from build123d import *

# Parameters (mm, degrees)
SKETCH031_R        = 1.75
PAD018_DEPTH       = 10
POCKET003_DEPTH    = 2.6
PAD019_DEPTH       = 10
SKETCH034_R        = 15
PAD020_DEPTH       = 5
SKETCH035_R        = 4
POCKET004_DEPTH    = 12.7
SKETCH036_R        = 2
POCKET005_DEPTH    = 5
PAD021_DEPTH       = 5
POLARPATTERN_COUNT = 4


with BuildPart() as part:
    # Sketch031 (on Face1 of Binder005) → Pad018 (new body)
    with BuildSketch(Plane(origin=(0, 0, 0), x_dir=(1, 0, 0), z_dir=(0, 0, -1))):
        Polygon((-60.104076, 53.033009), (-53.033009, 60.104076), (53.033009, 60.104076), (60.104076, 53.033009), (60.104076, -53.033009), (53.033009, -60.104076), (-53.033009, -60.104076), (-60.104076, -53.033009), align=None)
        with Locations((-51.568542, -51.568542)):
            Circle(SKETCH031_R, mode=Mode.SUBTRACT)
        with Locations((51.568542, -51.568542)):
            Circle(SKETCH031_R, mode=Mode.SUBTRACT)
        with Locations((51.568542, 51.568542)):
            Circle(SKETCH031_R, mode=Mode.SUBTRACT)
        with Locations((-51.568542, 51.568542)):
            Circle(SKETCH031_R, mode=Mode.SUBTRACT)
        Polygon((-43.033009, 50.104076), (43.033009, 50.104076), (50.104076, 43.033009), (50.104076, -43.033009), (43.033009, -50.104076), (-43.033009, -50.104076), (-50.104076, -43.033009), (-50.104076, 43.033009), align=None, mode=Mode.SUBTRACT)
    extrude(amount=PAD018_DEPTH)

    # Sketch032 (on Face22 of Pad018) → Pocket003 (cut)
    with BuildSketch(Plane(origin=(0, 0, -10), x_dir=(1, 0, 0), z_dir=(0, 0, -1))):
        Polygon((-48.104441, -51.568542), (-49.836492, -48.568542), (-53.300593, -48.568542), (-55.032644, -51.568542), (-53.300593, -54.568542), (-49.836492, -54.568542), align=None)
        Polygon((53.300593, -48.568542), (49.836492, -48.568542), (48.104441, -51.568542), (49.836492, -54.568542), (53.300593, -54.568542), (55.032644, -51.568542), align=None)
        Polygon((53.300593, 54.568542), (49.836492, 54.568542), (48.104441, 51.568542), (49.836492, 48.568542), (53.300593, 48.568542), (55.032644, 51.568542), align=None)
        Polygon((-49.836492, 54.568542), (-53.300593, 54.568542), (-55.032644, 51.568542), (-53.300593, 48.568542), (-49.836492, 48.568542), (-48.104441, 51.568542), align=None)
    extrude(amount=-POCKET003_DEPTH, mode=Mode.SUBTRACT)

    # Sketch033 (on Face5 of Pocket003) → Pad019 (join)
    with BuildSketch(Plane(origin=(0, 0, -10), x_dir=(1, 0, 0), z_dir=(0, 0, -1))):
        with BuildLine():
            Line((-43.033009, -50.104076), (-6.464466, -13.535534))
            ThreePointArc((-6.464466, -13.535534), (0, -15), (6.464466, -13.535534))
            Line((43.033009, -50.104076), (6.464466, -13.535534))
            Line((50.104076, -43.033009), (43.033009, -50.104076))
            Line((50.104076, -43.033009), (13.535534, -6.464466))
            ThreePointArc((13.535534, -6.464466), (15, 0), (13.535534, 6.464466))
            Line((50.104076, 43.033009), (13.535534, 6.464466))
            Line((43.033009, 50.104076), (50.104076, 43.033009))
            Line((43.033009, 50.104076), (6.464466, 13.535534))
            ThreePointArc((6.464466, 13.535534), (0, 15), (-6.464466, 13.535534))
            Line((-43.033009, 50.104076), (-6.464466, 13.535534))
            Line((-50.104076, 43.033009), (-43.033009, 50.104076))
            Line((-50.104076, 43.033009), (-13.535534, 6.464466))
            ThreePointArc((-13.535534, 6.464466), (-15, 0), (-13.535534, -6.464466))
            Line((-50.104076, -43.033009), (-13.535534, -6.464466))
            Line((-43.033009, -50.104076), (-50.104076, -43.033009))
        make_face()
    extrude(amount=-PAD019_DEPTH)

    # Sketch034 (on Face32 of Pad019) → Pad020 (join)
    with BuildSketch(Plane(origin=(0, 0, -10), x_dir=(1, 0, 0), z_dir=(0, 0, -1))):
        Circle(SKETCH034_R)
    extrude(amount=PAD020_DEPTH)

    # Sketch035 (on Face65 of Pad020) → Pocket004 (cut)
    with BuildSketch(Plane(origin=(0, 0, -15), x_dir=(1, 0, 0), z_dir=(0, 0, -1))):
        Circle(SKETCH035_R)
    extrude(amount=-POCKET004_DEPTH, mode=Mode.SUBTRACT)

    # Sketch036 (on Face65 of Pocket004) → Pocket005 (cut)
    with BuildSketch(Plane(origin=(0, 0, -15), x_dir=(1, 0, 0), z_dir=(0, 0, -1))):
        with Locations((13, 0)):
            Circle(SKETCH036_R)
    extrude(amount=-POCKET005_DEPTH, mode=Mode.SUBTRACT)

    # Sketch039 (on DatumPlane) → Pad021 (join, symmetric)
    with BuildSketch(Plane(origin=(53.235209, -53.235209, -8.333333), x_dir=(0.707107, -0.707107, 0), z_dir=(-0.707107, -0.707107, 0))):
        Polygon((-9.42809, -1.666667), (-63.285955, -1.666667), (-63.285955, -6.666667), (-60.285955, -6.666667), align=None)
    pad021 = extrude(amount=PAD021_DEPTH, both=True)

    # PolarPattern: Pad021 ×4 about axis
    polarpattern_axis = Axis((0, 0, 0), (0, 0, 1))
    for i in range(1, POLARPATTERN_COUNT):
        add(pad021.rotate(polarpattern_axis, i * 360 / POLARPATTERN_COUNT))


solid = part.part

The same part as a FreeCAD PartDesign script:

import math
import FreeCAD as App
import Part
import Sketcher

V = App.Vector
Q = App.Units.Quantity

doc = App.newDocument("Part")
body = doc.addObject("PartDesign::Body", "Body")

# Sketch on XY plane
sketch1 = doc.addObject("Sketcher::SketchObject", "Sketch")
body.addObject(sketch1)
sketch1.AttachmentSupport = (doc.XY_Plane, [""])
sketch1.MapMode = "FlatFace"
sketch1.addGeometry([
    Part.LineSegment(V(-53, -60.1, 0), V(-60.1, -53, 0)),  # 0
    Part.LineSegment(V(-60.1, -53, 0), V(-60.1, 53, 0)),  # 1
    Part.LineSegment(V(-60.1, 53, 0), V(-53, 60.1, 0)),  # 2
    Part.LineSegment(V(-53, 60.1, 0), V(53, 60.1, 0)),  # 3
    Part.LineSegment(V(53, 60.1, 0), V(60.1, 53, 0)),  # 4
    Part.LineSegment(V(60.1, 53, 0), V(60.1, -53, 0)),  # 5
    Part.LineSegment(V(60.1, -53, 0), V(53, -60.1, 0)),  # 6
    Part.LineSegment(V(53, -60.1, 0), V(-53, -60.1, 0)),  # 7
    Part.Circle(V(51.6, 51.6, 0), V(0, 0, 1), 1.8),  # 8
    Part.Circle(V(-51.6, 51.6, 0), V(0, 0, 1), 1.8),  # 9
    Part.Circle(V(51.6, -51.6, 0), V(0, 0, 1), 1.8),  # 10
    Part.LineSegment(V(-43, -50.1, 0), V(43, -50.1, 0)),  # 11
    Part.LineSegment(V(43, -50.1, 0), V(50.1, -43, 0)),  # 12
    Part.LineSegment(V(50.1, -43, 0), V(50.1, 43, 0)),  # 13
    Part.LineSegment(V(50.1, 43, 0), V(43, 50.1, 0)),  # 14
    Part.LineSegment(V(43, 50.1, 0), V(-43, 50.1, 0)),  # 15
    Part.LineSegment(V(-43, 50.1, 0), V(-50.1, 43, 0)),  # 16
    Part.LineSegment(V(-50.1, 43, 0), V(-50.1, -43, 0)),  # 17
    Part.LineSegment(V(-50.1, -43, 0), V(-43, -50.1, 0)),  # 18
    Part.Circle(V(-51.6, -51.6, 0), V(0, 0, 1), 1.8),  # 19
], False)
sketch1.addConstraint([
    Sketcher.Constraint("Coincident", 0, 2, 1, 1),
    Sketcher.Constraint("Coincident", 1, 2, 2, 1),
    Sketcher.Constraint("Coincident", 2, 2, 3, 1),
    Sketcher.Constraint("Coincident", 3, 2, 4, 1),
    Sketcher.Constraint("Coincident", 4, 2, 5, 1),
    Sketcher.Constraint("Coincident", 5, 2, 6, 1),
    Sketcher.Constraint("Coincident", 6, 2, 7, 1),
    Sketcher.Constraint("Coincident", 7, 2, 0, 1),
    Sketcher.Constraint("Coincident", 11, 2, 12, 1),
    Sketcher.Constraint("Coincident", 12, 2, 13, 1),
    Sketcher.Constraint("Coincident", 13, 2, 14, 1),
    Sketcher.Constraint("Coincident", 14, 2, 15, 1),
    Sketcher.Constraint("Coincident", 15, 2, 16, 1),
    Sketcher.Constraint("Coincident", 16, 2, 17, 1),
    Sketcher.Constraint("Coincident", 17, 2, 18, 1),
    Sketcher.Constraint("Coincident", 18, 2, 11, 1),
    Sketcher.Constraint("Vertical", 1),
    Sketcher.Constraint("Horizontal", 3),
    Sketcher.Constraint("Vertical", 5),
    Sketcher.Constraint("Horizontal", 7),
    Sketcher.Constraint("Horizontal", 11),
    Sketcher.Constraint("Vertical", 13),
    Sketcher.Constraint("Horizontal", 15),
    Sketcher.Constraint("Vertical", 17),
    Sketcher.Constraint("Equal", 8, 9),
    Sketcher.Constraint("Equal", 9, 10),
    Sketcher.Constraint("Equal", 10, 19),
    Sketcher.Constraint("Symmetric", 9, 3, 10, 3, -1, 1),
    Sketcher.Constraint("Symmetric", 8, 3, 19, 3, -1, 1),
    Sketcher.Constraint("Symmetric", 0, 2, 4, 2, -1, 1),
    Sketcher.Constraint("Symmetric", 2, 2, 6, 2, -1, 1),
    Sketcher.Constraint("Symmetric", 11, 2, 15, 2, -1, 1),
    Sketcher.Constraint("Symmetric", 12, 2, 16, 2, -1, 1),
    Sketcher.Constraint("Symmetric", 8, 3, 9, 3, -2),
    Sketcher.Constraint("Perpendicular", 0, 2),
    Sketcher.Constraint("Perpendicular", 2, 4),
    Sketcher.Constraint("Perpendicular", 4, 6),
    Sketcher.Constraint("Parallel", 6, 12),
    Sketcher.Constraint("Perpendicular", 12, 14),
    Sketcher.Constraint("Perpendicular", 16, 18),
    Sketcher.Constraint("Horizontal", 1, 2, 4, 2),
    Sketcher.Constraint("Horizontal", 13, 2, 16, 2),
    Sketcher.Constraint("Horizontal", 12, 2, 17, 2),
    Sketcher.Constraint("Vertical", 3, 2, 6, 2),
    Sketcher.Constraint("Equal", 7, 1),
    Sketcher.Constraint("Equal", 15, 13),
    Sketcher.Constraint("Equal", 6, 12),
    Sketcher.Constraint("Diameter", 8, Q("3.5 mm")),
    Sketcher.Constraint("Distance", 0, Q("9.999999 mm")),
    Sketcher.Constraint("DistanceX", 11, 2, 6, 2, Q("10 mm")),
    Sketcher.Constraint("DistanceX", 3, 1, 3, 2, Q("106.066018 mm")),
    Sketcher.Constraint("DistanceY", 0, 2, 9, 3, Q("104.601551 mm")),
    Sketcher.Constraint("DistanceX", 0, 2, 10, 3, Q("111.672618 mm")),
])
pad1 = doc.addObject("PartDesign::Pad", "Pad")
body.addObject(pad1)
pad1.Profile = sketch1
pad1.Length = 10
pad1.Reversed = True

# Sketch on XY plane
sketch2 = doc.addObject("Sketcher::SketchObject", "Sketch001")
body.addObject(sketch2)
sketch2.AttachmentSupport = (doc.XY_Plane, [""])
sketch2.MapMode = "FlatFace"
sketch2.AttachmentOffset = App.Placement(V(0, 0, -10), App.Rotation())
sketch2.addGeometry([
    Part.LineSegment(V(-48.1, 51.6, 0), V(-49.8, 48.6, 0)),  # 0
    Part.LineSegment(V(-49.8, 48.6, 0), V(-53.3, 48.6, 0)),  # 1
    Part.LineSegment(V(-53.3, 48.6, 0), V(-55, 51.6, 0)),  # 2
    Part.LineSegment(V(-55, 51.6, 0), V(-53.3, 54.6, 0)),  # 3
    Part.LineSegment(V(-53.3, 54.6, 0), V(-49.8, 54.6, 0)),  # 4
    Part.LineSegment(V(-49.8, 54.6, 0), V(-48.1, 51.6, 0)),  # 5
    Part.LineSegment(V(53.3, 48.6, 0), V(49.8, 48.6, 0)),  # 6
    Part.LineSegment(V(49.8, 48.6, 0), V(48.1, 51.6, 0)),  # 7
    Part.LineSegment(V(48.1, 51.6, 0), V(49.8, 54.6, 0)),  # 8
    Part.LineSegment(V(49.8, 54.6, 0), V(53.3, 54.6, 0)),  # 9
    Part.LineSegment(V(53.3, 54.6, 0), V(55, 51.6, 0)),  # 10
    Part.LineSegment(V(55, 51.6, 0), V(53.3, 48.6, 0)),  # 11
    Part.LineSegment(V(53.3, -54.6, 0), V(49.8, -54.6, 0)),  # 12
    Part.LineSegment(V(49.8, -54.6, 0), V(48.1, -51.6, 0)),  # 13
    Part.LineSegment(V(48.1, -51.6, 0), V(49.8, -48.6, 0)),  # 14
    Part.LineSegment(V(49.8, -48.6, 0), V(53.3, -48.6, 0)),  # 15
    Part.LineSegment(V(53.3, -48.6, 0), V(55, -51.6, 0)),  # 16
    Part.LineSegment(V(55, -51.6, 0), V(53.3, -54.6, 0)),  # 17
    Part.LineSegment(V(-49.8, -54.6, 0), V(-53.3, -54.6, 0)),  # 18
    Part.LineSegment(V(-53.3, -54.6, 0), V(-55, -51.6, 0)),  # 19
    Part.LineSegment(V(-55, -51.6, 0), V(-53.3, -48.6, 0)),  # 20
    Part.LineSegment(V(-53.3, -48.6, 0), V(-49.8, -48.6, 0)),  # 21
    Part.LineSegment(V(-49.8, -48.6, 0), V(-48.1, -51.6, 0)),  # 22
    Part.LineSegment(V(-48.1, -51.6, 0), V(-49.8, -54.6, 0)),  # 23
], False)
sketch2.addConstraint([
    Sketcher.Constraint("Coincident", 0, 2, 1, 1),
    Sketcher.Constraint("Coincident", 1, 2, 2, 1),
    Sketcher.Constraint("Coincident", 2, 2, 3, 1),
    Sketcher.Constraint("Coincident", 3, 2, 4, 1),
    Sketcher.Constraint("Coincident", 4, 2, 5, 1),
    Sketcher.Constraint("Coincident", 5, 2, 0, 1),
    Sketcher.Constraint("Coincident", 6, 2, 7, 1),
    Sketcher.Constraint("Coincident", 7, 2, 8, 1),
    Sketcher.Constraint("Coincident", 8, 2, 9, 1),
    Sketcher.Constraint("Coincident", 9, 2, 10, 1),
    Sketcher.Constraint("Coincident", 10, 2, 11, 1),
    Sketcher.Constraint("Coincident", 11, 2, 6, 1),
    Sketcher.Constraint("Coincident", 12, 2, 13, 1),
    Sketcher.Constraint("Coincident", 13, 2, 14, 1),
    Sketcher.Constraint("Coincident", 14, 2, 15, 1),
    Sketcher.Constraint("Coincident", 15, 2, 16, 1),
    Sketcher.Constraint("Coincident", 16, 2, 17, 1),
    Sketcher.Constraint("Coincident", 17, 2, 12, 1),
    Sketcher.Constraint("Coincident", 18, 2, 19, 1),
    Sketcher.Constraint("Coincident", 19, 2, 20, 1),
    Sketcher.Constraint("Coincident", 20, 2, 21, 1),
    Sketcher.Constraint("Coincident", 21, 2, 22, 1),
    Sketcher.Constraint("Coincident", 22, 2, 23, 1),
    Sketcher.Constraint("Coincident", 23, 2, 18, 1),
    Sketcher.Constraint("Horizontal", 1),
    Sketcher.Constraint("Horizontal", 4),
    Sketcher.Constraint("Horizontal", 6),
    Sketcher.Constraint("Horizontal", 9),
    Sketcher.Constraint("Horizontal", 12),
    Sketcher.Constraint("Horizontal", 15),
    Sketcher.Constraint("Horizontal", 18),
    Sketcher.Constraint("Horizontal", 21),
    Sketcher.Constraint("Symmetric", 4, 2, 12, 2, -1, 1),
    Sketcher.Constraint("Symmetric", 5, 2, 13, 2, -1, 1),
    Sketcher.Constraint("Symmetric", 0, 2, 14, 2, -1, 1),
    Sketcher.Constraint("Symmetric", 2, 2, 16, 2, -1, 1),
    Sketcher.Constraint("Symmetric", 9, 2, 18, 2, -1, 1),
    Sketcher.Constraint("Symmetric", 10, 2, 19, 2, -1, 1),
    Sketcher.Constraint("Symmetric", 11, 2, 20, 2, -1, 1),
    Sketcher.Constraint("Symmetric", 7, 2, 22, 2, -1, 1),
    Sketcher.Constraint("Symmetric", 0, 2, 6, 2, -2),
    Sketcher.Constraint("Symmetric", 5, 2, 7, 2, -2),
    Sketcher.Constraint("Symmetric", 4, 2, 8, 2, -2),
    Sketcher.Constraint("Symmetric", 2, 2, 10, 2, -2),
    Sketcher.Constraint("Parallel", 0, 3),
    Sketcher.Constraint("Parallel", 2, 5),
    Sketcher.Constraint("Parallel", 5, 7),
    Sketcher.Constraint("Parallel", 7, 10),
    Sketcher.Constraint("Parallel", 8, 11),
    Sketcher.Constraint("Parallel", 13, 16),
    Sketcher.Constraint("Parallel", 14, 17),
    Sketcher.Constraint("Parallel", 19, 22),
    Sketcher.Constraint("Parallel", 20, 23),
    Sketcher.Constraint("Horizontal", 2, 2, 5, 2),
    Sketcher.Constraint("Vertical", 1, 2, 3, 2),
    Sketcher.Constraint("Angle", 0, Q("-120.000003 deg")),
    Sketcher.Constraint("DistanceY", 1, 2, 2, 2, Q("3 mm")),
    Sketcher.Constraint("DistanceX", 1, 2, 1, 1, Q("3.464101 mm")),
    Sketcher.Constraint("DistanceX", 5, 2, -1, 1, Q("48.104441 mm")),
    Sketcher.Constraint("DistanceY", -1, 1, 0, 2, Q("48.568542 mm")),
])
pocket1 = doc.addObject("PartDesign::Pocket", "Pocket")
body.addObject(pocket1)
pocket1.Profile = sketch2
pocket1.Length = 2.6
pocket1.Reversed = True

# Sketch on XY plane
sketch3 = doc.addObject("Sketcher::SketchObject", "Sketch002")
body.addObject(sketch3)
sketch3.AttachmentSupport = (doc.XY_Plane, [""])
sketch3.MapMode = "FlatFace"
sketch3.AttachmentOffset = App.Placement(V(0, 0, -10), App.Rotation())
sketch3.addGeometry([
    Part.LineSegment(V(-43, 50, 0), V(-6, 14, 0)),  # 0
    Part.ArcOfCircle(Part.Circle(V(0, 0, 0), V(0, 0, 1), 15), math.radians(64), math.radians(116)),  # 1
    Part.LineSegment(V(6, 14, 0), V(43, 50, 0)),  # 2
    Part.LineSegment(V(43, 50, 0), V(50, 43, 0)),  # 3
    Part.LineSegment(V(50, 43, 0), V(14, 6, 0)),  # 4
    Part.ArcOfCircle(Part.Circle(V(0, 0, 0), V(0, 0, 1), 15), math.radians(-26), math.radians(26)),  # 5
    Part.LineSegment(V(14, -6, 0), V(50, -43, 0)),  # 6
    Part.LineSegment(V(50, -43, 0), V(43, -50, 0)),  # 7
    Part.LineSegment(V(43, -50, 0), V(6, -14, 0)),  # 8
    Part.ArcOfCircle(Part.Circle(V(0, 0, 0), V(0, 0, 1), 15), math.radians(-116), math.radians(-64)),  # 9
    Part.LineSegment(V(-6, -14, 0), V(-43, -50, 0)),  # 10
    Part.LineSegment(V(-43, -50, 0), V(-50, -43, 0)),  # 11
    Part.LineSegment(V(-50, -43, 0), V(-14, -6, 0)),  # 12
    Part.ArcOfCircle(Part.Circle(V(0, 0, 0), V(0, 0, 1), 15), math.radians(154), math.radians(206)),  # 13
    Part.LineSegment(V(-14, 6, 0), V(-50, 43, 0)),  # 14
    Part.LineSegment(V(-50, 43, 0), V(-43, 50, 0)),  # 15
], False)
sketch3.addConstraint([
    Sketcher.Constraint("Coincident", 0, 2, 1, 2),
    Sketcher.Constraint("Coincident", 1, 1, 2, 1),
    Sketcher.Constraint("Coincident", 2, 2, 3, 1),
    Sketcher.Constraint("Coincident", 3, 2, 4, 1),
    Sketcher.Constraint("Coincident", 4, 2, 5, 2),
    Sketcher.Constraint("Coincident", 5, 1, 6, 1),
    Sketcher.Constraint("Coincident", 6, 2, 7, 1),
    Sketcher.Constraint("Coincident", 7, 2, 8, 1),
    Sketcher.Constraint("Coincident", 8, 2, 9, 2),
    Sketcher.Constraint("Coincident", 9, 1, 10, 1),
    Sketcher.Constraint("Coincident", 10, 2, 11, 1),
    Sketcher.Constraint("Coincident", 11, 2, 12, 1),
    Sketcher.Constraint("Coincident", 12, 2, 13, 2),
    Sketcher.Constraint("Coincident", 13, 1, 14, 1),
    Sketcher.Constraint("Coincident", 14, 2, 15, 1),
    Sketcher.Constraint("Coincident", 15, 2, 0, 1),
    Sketcher.Constraint("Coincident", 1, 3, -1, 1),
    Sketcher.Constraint("Coincident", 5, 3, -1, 1),
    Sketcher.Constraint("Coincident", 9, 3, -1, 1),
    Sketcher.Constraint("Coincident", 13, 3, -1, 1),
    Sketcher.Constraint("Equal", 1, 5),
    Sketcher.Constraint("Equal", 5, 9),
    Sketcher.Constraint("Equal", 9, 13),
    Sketcher.Constraint("Symmetric", 2, 2, 10, 2, -1, 1),
    Sketcher.Constraint("Symmetric", 3, 2, 11, 2, -1, 1),
    Sketcher.Constraint("Symmetric", 6, 2, 14, 2, -1, 1),
    Sketcher.Constraint("Symmetric", 7, 2, 15, 2, -1, 1),
    Sketcher.Constraint("Symmetric", 7, 2, 10, 2, -2),
    Sketcher.Constraint("Symmetric", 6, 2, 11, 2, -2),
    Sketcher.Constraint("Perpendicular", 0, 2),
    Sketcher.Constraint("Perpendicular", 2, 3),
    Sketcher.Constraint("Perpendicular", 3, 4),
    Sketcher.Constraint("Perpendicular", 4, 6),
    Sketcher.Constraint("Perpendicular", 6, 7),
    Sketcher.Constraint("Perpendicular", 7, 8),
    Sketcher.Constraint("Perpendicular", 8, 10),
    Sketcher.Constraint("Perpendicular", 11, 12),
    Sketcher.Constraint("Perpendicular", 12, 14),
    Sketcher.Constraint("Equal", 2, 4),
    Sketcher.Constraint("Radius", 1, Q("15 mm")),
    Sketcher.Constraint("Distance", 3, Q("9.999999 mm")),
    Sketcher.Constraint("Distance", 0, Q("51.715729 mm")),
])
pad2 = doc.addObject("PartDesign::Pad", "Pad001")
body.addObject(pad2)
pad2.Profile = sketch3
pad2.Length = 10

# Sketch on XY plane
sketch4 = doc.addObject("Sketcher::SketchObject", "Sketch003")
body.addObject(sketch4)
sketch4.AttachmentSupport = (doc.XY_Plane, [""])
sketch4.MapMode = "FlatFace"
sketch4.AttachmentOffset = App.Placement(V(0, 0, -10), App.Rotation())
sketch4.addGeometry(Part.Circle(V(0, 0, 0), V(0, 0, 1), 15), False)
sketch4.addConstraint([
    Sketcher.Constraint("Coincident", 0, 3, -1, 1),
    Sketcher.Constraint("Diameter", 0, Q("30 mm")),
])
pad3 = doc.addObject("PartDesign::Pad", "Pad002")
body.addObject(pad3)
pad3.Profile = sketch4
pad3.Length = 5
pad3.Reversed = True

# Sketch on XY plane
sketch5 = doc.addObject("Sketcher::SketchObject", "Sketch004")
body.addObject(sketch5)
sketch5.AttachmentSupport = (doc.XY_Plane, [""])
sketch5.MapMode = "FlatFace"
sketch5.AttachmentOffset = App.Placement(V(0, 0, -15), App.Rotation())
sketch5.addGeometry(Part.Circle(V(0, 0, 0), V(0, 0, 1), 4), False)
sketch5.addConstraint([
    Sketcher.Constraint("Coincident", 0, 3, -1, 1),
    Sketcher.Constraint("Diameter", 0, Q("8 mm")),
])
pocket2 = doc.addObject("PartDesign::Pocket", "Pocket001")
body.addObject(pocket2)
pocket2.Profile = sketch5
pocket2.Length = 12.7
pocket2.Reversed = True

# Sketch on XY plane
sketch6 = doc.addObject("Sketcher::SketchObject", "Sketch005")
body.addObject(sketch6)
sketch6.AttachmentSupport = (doc.XY_Plane, [""])
sketch6.MapMode = "FlatFace"
sketch6.AttachmentOffset = App.Placement(V(0, 0, -15), App.Rotation())
sketch6.addGeometry(Part.Circle(V(13, 0, 0), V(0, 0, 1), 2), False)
sketch6.addConstraint([
    Sketcher.Constraint("PointOnObject", 0, 3, -1),
    Sketcher.Constraint("Diameter", 0, Q("4 mm")),
    Sketcher.Constraint("DistanceX", -1, 1, 0, 3, Q("13 mm")),
])
pocket3 = doc.addObject("PartDesign::Pocket", "Pocket002")
body.addObject(pocket3)
pocket3.Profile = sketch6
pocket3.Length = 5
pocket3.Reversed = True

# Sketch on an angled plane
sketch7 = doc.addObject("Sketcher::SketchObject", "Sketch006")
body.addObject(sketch7)
sketch7.Placement = App.Placement(V(53.235209, -53.235209, -8.333333), App.Rotation(V(0.707106781, -0.707106781, 0), V(0, 0, 0.999999999), V(-0.707106781, -0.707106781, 0), "ZXY"))
sketch7.addGeometry([
    Part.LineSegment(V(-9.4, -1.7, 0), V(-63.3, -1.7, 0)),
    Part.LineSegment(V(-63.3, -1.7, 0), V(-63.3, -6.7, 0)),
    Part.LineSegment(V(-63.3, -6.7, 0), V(-60.3, -6.7, 0)),
    Part.LineSegment(V(-60.3, -6.7, 0), V(-9.4, -1.7, 0)),
], False)
sketch7.addConstraint([
    Sketcher.Constraint("Coincident", 0, 2, 1, 1),
    Sketcher.Constraint("Coincident", 1, 2, 2, 1),
    Sketcher.Constraint("Coincident", 2, 2, 3, 1),
    Sketcher.Constraint("Coincident", 3, 2, 0, 1),
    Sketcher.Constraint("Horizontal", 0),
    Sketcher.Constraint("Vertical", 1),
    Sketcher.Constraint("Horizontal", 2),
    Sketcher.Constraint("DistanceX", 2, 1, 2, 2, Q("3 mm")),
    Sketcher.Constraint("DistanceY", 1, 2, 1, 1, Q("5 mm")),
    Sketcher.Constraint("DistanceX", 0, 2, 0, 1, Q("53.857865 mm")),
    Sketcher.Constraint("DistanceX", 3, 2, -1, 1, Q("9.42809 mm")),
    Sketcher.Constraint("DistanceY", 0, 2, -1, 1, Q("1.666667 mm")),
])
pad4 = doc.addObject("PartDesign::Pad", "Pad003")
body.addObject(pad4)
pad4.Profile = sketch7
pad4.Length = 10
pad4.Midplane = True
doc.recompute()

polarpattern = doc.addObject("PartDesign::PolarPattern", "PolarPattern")
body.addObject(polarpattern)
polarpattern.Originals = [pad4]
polarpattern.Axis = (doc.Z_Axis, [""])
polarpattern.Angle = 360
polarpattern.Occurrences = 4
body.Tip = polarpattern

doc.recompute()
